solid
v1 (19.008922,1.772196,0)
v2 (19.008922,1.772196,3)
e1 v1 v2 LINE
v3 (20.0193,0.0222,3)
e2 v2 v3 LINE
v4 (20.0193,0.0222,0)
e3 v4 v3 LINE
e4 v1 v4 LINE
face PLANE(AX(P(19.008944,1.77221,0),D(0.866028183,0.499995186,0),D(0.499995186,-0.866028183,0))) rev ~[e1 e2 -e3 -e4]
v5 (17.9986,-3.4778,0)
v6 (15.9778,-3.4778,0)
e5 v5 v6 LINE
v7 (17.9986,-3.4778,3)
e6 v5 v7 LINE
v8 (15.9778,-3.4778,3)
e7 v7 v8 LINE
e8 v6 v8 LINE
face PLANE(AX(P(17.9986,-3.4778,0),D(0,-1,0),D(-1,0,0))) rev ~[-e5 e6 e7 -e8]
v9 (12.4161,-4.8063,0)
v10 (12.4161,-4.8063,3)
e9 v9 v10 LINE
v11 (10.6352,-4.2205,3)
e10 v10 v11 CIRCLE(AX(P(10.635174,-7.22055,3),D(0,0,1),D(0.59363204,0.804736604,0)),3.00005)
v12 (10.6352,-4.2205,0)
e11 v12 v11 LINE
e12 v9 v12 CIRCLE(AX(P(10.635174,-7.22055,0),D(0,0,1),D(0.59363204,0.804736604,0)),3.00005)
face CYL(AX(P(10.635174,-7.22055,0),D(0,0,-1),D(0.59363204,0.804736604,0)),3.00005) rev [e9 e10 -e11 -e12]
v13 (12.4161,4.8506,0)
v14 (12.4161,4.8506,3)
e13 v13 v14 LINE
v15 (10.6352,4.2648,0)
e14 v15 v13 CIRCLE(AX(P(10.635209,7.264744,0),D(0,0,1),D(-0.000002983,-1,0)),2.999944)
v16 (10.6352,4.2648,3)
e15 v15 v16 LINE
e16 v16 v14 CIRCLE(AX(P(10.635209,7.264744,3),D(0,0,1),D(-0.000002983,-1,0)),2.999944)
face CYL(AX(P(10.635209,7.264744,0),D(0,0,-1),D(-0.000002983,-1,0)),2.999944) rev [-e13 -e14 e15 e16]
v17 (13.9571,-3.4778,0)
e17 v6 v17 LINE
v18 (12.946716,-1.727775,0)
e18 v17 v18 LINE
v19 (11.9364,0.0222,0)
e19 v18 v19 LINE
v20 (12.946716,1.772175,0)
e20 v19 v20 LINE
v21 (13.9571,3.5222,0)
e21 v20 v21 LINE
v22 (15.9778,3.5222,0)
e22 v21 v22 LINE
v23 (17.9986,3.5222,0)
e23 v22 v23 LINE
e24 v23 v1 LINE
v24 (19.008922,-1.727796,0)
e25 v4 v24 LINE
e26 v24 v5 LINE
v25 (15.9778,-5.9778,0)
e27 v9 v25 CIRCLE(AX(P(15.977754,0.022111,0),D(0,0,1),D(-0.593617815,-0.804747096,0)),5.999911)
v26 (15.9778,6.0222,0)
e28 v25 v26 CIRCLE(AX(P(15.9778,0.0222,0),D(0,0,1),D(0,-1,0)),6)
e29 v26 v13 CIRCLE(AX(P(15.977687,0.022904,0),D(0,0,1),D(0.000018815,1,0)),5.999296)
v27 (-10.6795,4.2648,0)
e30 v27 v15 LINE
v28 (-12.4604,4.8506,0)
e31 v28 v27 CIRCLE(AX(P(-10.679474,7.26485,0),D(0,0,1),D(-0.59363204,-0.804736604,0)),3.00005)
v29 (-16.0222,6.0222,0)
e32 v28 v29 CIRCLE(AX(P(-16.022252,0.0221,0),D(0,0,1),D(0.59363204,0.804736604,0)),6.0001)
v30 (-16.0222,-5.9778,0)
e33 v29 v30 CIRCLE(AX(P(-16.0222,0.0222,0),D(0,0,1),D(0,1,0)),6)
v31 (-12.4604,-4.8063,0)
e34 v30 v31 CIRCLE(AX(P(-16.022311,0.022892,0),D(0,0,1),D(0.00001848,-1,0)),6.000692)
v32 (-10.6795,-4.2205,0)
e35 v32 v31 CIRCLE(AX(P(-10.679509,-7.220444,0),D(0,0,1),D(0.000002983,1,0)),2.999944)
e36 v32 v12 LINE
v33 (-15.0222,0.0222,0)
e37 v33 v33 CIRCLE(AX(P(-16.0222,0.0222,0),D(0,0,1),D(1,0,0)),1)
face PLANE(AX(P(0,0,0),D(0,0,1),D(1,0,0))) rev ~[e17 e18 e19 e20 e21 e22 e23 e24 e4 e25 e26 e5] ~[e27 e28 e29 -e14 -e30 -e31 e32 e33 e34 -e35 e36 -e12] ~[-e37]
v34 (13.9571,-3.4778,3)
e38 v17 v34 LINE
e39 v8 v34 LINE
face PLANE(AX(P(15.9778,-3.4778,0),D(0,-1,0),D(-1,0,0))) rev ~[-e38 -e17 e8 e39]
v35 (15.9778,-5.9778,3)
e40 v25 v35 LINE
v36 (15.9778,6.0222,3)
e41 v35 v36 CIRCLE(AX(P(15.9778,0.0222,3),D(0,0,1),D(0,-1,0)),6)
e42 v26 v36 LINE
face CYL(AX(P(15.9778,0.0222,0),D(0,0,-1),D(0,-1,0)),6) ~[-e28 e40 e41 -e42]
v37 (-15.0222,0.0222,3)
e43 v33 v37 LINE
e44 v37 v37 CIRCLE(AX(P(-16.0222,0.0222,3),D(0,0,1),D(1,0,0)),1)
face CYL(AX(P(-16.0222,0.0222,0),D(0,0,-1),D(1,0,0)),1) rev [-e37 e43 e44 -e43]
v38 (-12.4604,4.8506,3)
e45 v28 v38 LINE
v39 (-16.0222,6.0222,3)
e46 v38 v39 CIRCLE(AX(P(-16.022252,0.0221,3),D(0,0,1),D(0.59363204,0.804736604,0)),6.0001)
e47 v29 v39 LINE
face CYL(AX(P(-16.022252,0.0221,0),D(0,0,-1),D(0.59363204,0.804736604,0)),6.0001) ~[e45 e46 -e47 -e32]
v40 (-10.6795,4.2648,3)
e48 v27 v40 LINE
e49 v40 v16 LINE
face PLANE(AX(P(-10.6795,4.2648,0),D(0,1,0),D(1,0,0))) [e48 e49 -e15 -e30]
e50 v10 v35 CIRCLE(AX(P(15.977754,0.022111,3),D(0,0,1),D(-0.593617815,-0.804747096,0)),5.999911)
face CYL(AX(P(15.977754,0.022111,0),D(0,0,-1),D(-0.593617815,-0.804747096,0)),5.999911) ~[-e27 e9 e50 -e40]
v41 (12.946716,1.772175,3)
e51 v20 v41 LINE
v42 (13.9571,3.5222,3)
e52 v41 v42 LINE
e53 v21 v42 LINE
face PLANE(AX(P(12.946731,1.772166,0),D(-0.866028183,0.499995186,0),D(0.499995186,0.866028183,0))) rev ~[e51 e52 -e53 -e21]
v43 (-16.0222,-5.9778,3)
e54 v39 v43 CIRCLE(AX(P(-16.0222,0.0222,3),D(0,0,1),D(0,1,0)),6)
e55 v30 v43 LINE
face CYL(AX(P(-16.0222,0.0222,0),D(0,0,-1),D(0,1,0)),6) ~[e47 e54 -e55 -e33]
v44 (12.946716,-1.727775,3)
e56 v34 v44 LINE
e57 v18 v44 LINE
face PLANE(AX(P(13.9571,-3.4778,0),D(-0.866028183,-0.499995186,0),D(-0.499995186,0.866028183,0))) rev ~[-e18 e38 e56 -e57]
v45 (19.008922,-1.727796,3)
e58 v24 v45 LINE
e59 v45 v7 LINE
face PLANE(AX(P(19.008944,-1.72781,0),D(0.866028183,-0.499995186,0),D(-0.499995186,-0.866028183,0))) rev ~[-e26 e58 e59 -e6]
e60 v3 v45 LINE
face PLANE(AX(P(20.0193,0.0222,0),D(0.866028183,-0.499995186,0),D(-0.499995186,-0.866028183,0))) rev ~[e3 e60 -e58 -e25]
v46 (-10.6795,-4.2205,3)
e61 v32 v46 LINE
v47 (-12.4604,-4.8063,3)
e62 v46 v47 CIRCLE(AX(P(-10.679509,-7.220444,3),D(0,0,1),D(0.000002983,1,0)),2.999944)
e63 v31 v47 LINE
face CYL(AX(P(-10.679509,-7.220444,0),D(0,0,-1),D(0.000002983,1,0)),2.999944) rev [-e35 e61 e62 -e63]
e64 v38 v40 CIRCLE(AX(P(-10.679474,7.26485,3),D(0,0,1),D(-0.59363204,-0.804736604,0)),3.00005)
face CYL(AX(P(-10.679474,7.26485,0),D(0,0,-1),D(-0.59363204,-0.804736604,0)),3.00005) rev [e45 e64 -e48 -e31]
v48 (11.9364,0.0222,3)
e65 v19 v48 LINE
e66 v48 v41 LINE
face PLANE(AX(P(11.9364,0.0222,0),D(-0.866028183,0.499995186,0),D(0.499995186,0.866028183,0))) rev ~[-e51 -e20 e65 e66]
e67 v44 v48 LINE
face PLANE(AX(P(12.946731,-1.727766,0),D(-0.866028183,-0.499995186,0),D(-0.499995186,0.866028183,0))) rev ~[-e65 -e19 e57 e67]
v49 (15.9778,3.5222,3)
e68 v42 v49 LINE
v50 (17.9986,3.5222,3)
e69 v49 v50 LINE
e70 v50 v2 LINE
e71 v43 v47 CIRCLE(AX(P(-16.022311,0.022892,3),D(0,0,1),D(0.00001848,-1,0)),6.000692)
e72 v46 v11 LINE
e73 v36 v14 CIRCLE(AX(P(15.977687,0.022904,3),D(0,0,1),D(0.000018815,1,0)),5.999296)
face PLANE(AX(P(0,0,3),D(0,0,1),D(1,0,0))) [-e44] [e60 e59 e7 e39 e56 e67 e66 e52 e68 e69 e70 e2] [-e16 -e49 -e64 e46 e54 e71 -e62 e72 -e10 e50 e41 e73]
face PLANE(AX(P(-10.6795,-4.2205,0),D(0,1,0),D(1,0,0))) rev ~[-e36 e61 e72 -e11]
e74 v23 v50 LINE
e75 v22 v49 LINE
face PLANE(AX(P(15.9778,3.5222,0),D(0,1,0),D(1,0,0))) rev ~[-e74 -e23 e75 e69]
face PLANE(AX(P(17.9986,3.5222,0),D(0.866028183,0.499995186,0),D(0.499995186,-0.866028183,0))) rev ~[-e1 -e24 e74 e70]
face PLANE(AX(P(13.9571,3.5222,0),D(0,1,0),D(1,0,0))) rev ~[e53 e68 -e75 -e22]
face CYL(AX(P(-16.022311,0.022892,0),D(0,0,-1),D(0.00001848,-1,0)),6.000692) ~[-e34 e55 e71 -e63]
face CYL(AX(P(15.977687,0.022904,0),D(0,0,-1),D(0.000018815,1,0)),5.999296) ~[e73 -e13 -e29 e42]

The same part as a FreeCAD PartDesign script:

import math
import FreeCAD as App
import Part
import Sketcher
Q = App.Units.Quantity

doc = App.newDocument("Part")
params = doc.addObject("Spreadsheet::Sheet", "Params")
for row, (alias, value) in enumerate([
    ("sketch1_diameter", "2 mm"),
    ("sketch1_radius", "6 mm"),
    ("sketch1_radius2", "3 mm"),
    ("pad1_length", "3 mm"),
], start=1):
    params.set(f"A{row}", alias)
    params.set(f"B{row}", "=" + value)
    params.setAlias(f"B{row}", alias)

body = doc.addObject("PartDesign::Body", "Body")

sketch1 = doc.addObject("Sketcher::SketchObject", "Sketch")
body.addObject(sketch1)
sketch1.AttachmentSupport = (doc.XY_Plane, [""])
sketch1.MapMode = "FlatFace"
sketch1.addGeometry([
    Part.ArcOfCircle(Part.Circle(App.Vector(-16.0222, 0.0222, 0), App.Vector(0, 0, 1), 6), math.radians(53.584654), math.radians(90)),
    Part.ArcOfCircle(Part.Circle(App.Vector(-16.0222, 0.0222, 0), App.Vector(0, 0, 1), 6), math.radians(90), math.radians(270)),
    Part.ArcOfCircle(Part.Circle(App.Vector(-16.0222, 0.0222, 0), App.Vector(0, 0, 1), 6), math.radians(-90), math.radians(-53.585221)),
    Part.ArcOfCircle(Part.Circle(App.Vector(-10.6795, -7.2205, 0), App.Vector(0, 0, 1), 3), math.radians(90), math.radians(126.415346)),
    Part.LineSegment(App.Vector(-10.6795, -4.2205, 0), App.Vector(10.6352, -4.2205, 0)),
    Part.ArcOfCircle(Part.Circle(App.Vector(10.6352, -7.2205, 0), App.Vector(0, 0, 1), 2.999994), math.radians(53.584654), math.radians(90)),
    Part.ArcOfCircle(Part.Circle(App.Vector(15.9778, 0.0222, 0), App.Vector(0, 0, 1), 6), math.radians(-126.41401), math.radians(-90)),
    Part.ArcOfCircle(Part.Circle(App.Vector(15.9778, 0.0222, 0), App.Vector(0, 0, 1), 6), math.radians(-90), math.radians(90)),
    Part.ArcOfCircle(Part.Circle(App.Vector(15.9778, 0.0222, 0), App.Vector(0, 0, 1), 6), math.radians(90), math.radians(126.414577)),
    Part.ArcOfCircle(Part.Circle(App.Vector(10.6352, 7.2648, 0), App.Vector(0, 0, 1), 3), math.radians(-90), math.radians(-53.584654)),
    Part.LineSegment(App.Vector(10.6352, 4.2648, 0), App.Vector(-10.6795, 4.2648, 0)),
    Part.ArcOfCircle(Part.Circle(App.Vector(-10.6795, 7.2648, 0), App.Vector(0, 0, 1), 2.999994), math.radians(-126.415346), math.radians(-90)),
    Part.Circle(App.Vector(-16.0222, 0.0222, 0), App.Vector(0, 0, 1), 1),
    Part.LineSegment(App.Vector(17.9986, 3.5222, 0), App.Vector(20.0193, 0.0222, 0)),
    Part.LineSegment(App.Vector(20.0193, 0.0222, 0), App.Vector(17.9986, -3.4778, 0)),
    Part.LineSegment(App.Vector(17.9986, -3.4778, 0), App.Vector(13.9571, -3.4778, 0)),
    Part.LineSegment(App.Vector(13.9571, -3.4778, 0), App.Vector(11.9364, 0.0222, 0)),
    Part.LineSegment(App.Vector(11.9364, 0.0222, 0), App.Vector(13.9571, 3.5222, 0)),
    Part.LineSegment(App.Vector(13.9571, 3.5222, 0), App.Vector(17.9986, 3.5222, 0)),
], False)
sketch1.addConstraint([
    Sketcher.Constraint("Tangent", 0, 2, 1, 1),
    Sketcher.Constraint("Tangent", 1, 2, 2, 1),
    Sketcher.Constraint("Tangent", 2, 2, 3, 2),
    Sketcher.Constraint("Tangent", 3, 1, 4, 1),
    Sketcher.Constraint("Tangent", 4, 2, 5, 2),
    Sketcher.Constraint("Tangent", 5, 1, 6, 1),
    Sketcher.Constraint("Tangent", 6, 2, 7, 1),
    Sketcher.Constraint("Tangent", 7, 2, 8, 1),
    Sketcher.Constraint("Tangent", 8, 2, 9, 2),
    Sketcher.Constraint("Tangent", 9, 1, 10, 1),
    Sketcher.Constraint("Tangent", 10, 2, 11, 2),
    Sketcher.Constraint("Tangent", 11, 1, 0, 1),
    Sketcher.Constraint("Coincident", 13, 2, 14, 1),
    Sketcher.Constraint("Coincident", 14, 2, 15, 1),
    Sketcher.Constraint("Coincident", 15, 2, 16, 1),
    Sketcher.Constraint("Coincident", 16, 2, 17, 1),
    Sketcher.Constraint("Coincident", 17, 2, 18, 1),
    Sketcher.Constraint("Coincident", 18, 2, 13, 1),
    Sketcher.Constraint("Horizontal", 4),
    Sketcher.Constraint("Horizontal", 10),
    Sketcher.Constraint("Horizontal", 15),
    Sketcher.Constraint("Horizontal", 18),
    Sketcher.Constraint("Coincident", 12, 3, 0, 3),
    Sketcher.Constraint("Equal", 0, 1),
    Sketcher.Constraint("Equal", 1, 2),
    Sketcher.Constraint("Equal", 3, 5),
    Sketcher.Constraint("Equal", 2, 6),
    Sketcher.Constraint("Equal", 6, 7),
    Sketcher.Constraint("Equal", 7, 8),
    Sketcher.Constraint("Equal", 5, 9),
    Sketcher.Constraint("Equal", 9, 11),
    Sketcher.Constraint("Parallel", 13, 16),
    Sketcher.Constraint("Parallel", 14, 17),
    Sketcher.Constraint("Horizontal", 2, 3, 6, 3),
    Sketcher.Constraint("Horizontal", 12, 3, 13, 2),
    Sketcher.Constraint("Horizontal", 13, 2, 16, 2),
    Sketcher.Constraint("Vertical", 5, 3, 9, 3),
    Sketcher.Constraint("Vertical", 12, 3, 0, 2),
    Sketcher.Constraint("Vertical", 0, 2, 1, 2),
    Sketcher.Constraint("Vertical", 8, 3, 6, 2),
    Sketcher.Constraint("Vertical", 6, 2, 7, 2),
    Sketcher.Constraint("Vertical", 15, 2, 17, 2),
    Sketcher.Constraint("Vertical", 14, 2, 18, 2),
    Sketcher.Constraint("Diameter", 12, Q("2 mm")),
    Sketcher.Constraint("Radius", 0, Q("6 mm")),
    Sketcher.Constraint("Radius", 3, Q("3 mm")),
    Sketcher.Constraint("DistanceX", 0, 3, 6, 3, Q("32 mm")),
    Sketcher.Constraint("Angle", 13, Q("-60.0003 deg")),
    Sketcher.Constraint("DistanceY", 6, 2, 14, 2, Q("2.5 mm")),
    Sketcher.Constraint("DistanceX", 4, 1, 4, 2, Q("21.3147 mm")),
    Sketcher.Constraint("DistanceX", 15, 2, 15, 1, Q("4.0415 mm")),
    Sketcher.Constraint("DistanceX", -1, 1, 5, 1, Q("12.416 mm")),
    Sketcher.Constraint("DistanceX", -1, 1, 15, 2, Q("13.957 mm")),
    Sketcher.Constraint("DistanceY", -1, 1, 0, 3, Q("0.0222 mm")),
])
sketch1.setExpression("Constraints[43]", "Params.sketch1_diameter")
sketch1.setExpression("Constraints[44]", "Params.sketch1_radius")
sketch1.setExpression("Constraints[45]", "Params.sketch1_radius2")
pad1 = doc.addObject("PartDesign::Pad", "Pad")
body.addObject(pad1)
pad1.Profile = sketch1
pad1.setExpression("Length", "Params.pad1_length")

doc.recompute()
